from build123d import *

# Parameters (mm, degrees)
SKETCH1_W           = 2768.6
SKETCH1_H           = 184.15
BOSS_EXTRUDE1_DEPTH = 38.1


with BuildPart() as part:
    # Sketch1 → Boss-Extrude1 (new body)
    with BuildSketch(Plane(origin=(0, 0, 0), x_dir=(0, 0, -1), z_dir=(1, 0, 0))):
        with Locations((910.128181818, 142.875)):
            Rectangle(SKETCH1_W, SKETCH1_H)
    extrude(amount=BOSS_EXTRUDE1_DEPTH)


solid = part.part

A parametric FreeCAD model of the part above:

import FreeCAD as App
import Part
import Sketcher
from FreeCAD import Vector
Q = App.Units.Quantity


def add_polygon(sketch, points):
    """Adds a closed chain of lines whose ends are joined by coincident constraints."""
    first, n = sketch.GeometryCount, len(points)
    for a, b in zip(points, points[1:] + points[:1]):
        sketch.addGeometry(Part.LineSegment(App.Vector(*a, 0), App.Vector(*b, 0)), False)
    for i in range(n):
        sketch.addConstraint(Sketcher.Constraint("Coincident", first + i, 2, first + (i + 1) % n, 1))

doc = App.newDocument("Part")
body = doc.addObject("PartDesign::Body", "Body")

# Sketch on YZ plane
sketch1 = doc.addObject("Sketcher::SketchObject", "Sketch")
body.addObject(sketch1)
sketch1.AttachmentSupport = (doc.YZ_Plane, [""])
sketch1.MapMode = "FlatFace"
add_polygon(sketch1, [(235, 474), (51, 474), (51, -2294), (235, -2294)])  # lines 0-3
sketch1.addConstraint(Sketcher.Constraint("Horizontal", 0))
sketch1.addConstraint(Sketcher.Constraint("Vertical", 1))
sketch1.addConstraint(Sketcher.Constraint("Horizontal", 2))
sketch1.addConstraint(Sketcher.Constraint("Vertical", 3))
sketch1.addConstraint(Sketcher.Constraint("DistanceY", 1, 2, 1, 1, Q("109 in")))
sketch1.addConstraint(Sketcher.Constraint("DistanceX", -1, 1, 0, 2, Q("2 in")))
sketch1.addConstraint(Sketcher.Constraint("DistanceX", 0, 2, 0, 1, Q("7.25 in")))
sketch1.addConstraint(Sketcher.Constraint("DistanceY", -1, 1, 0, 2, 474.171818))
pad1 = doc.addObject("PartDesign::Pad", "Pad")
body.addObject(pad1)
pad1.Profile = sketch1
pad1.Length = Q("1.5 in")

doc.recompute()
